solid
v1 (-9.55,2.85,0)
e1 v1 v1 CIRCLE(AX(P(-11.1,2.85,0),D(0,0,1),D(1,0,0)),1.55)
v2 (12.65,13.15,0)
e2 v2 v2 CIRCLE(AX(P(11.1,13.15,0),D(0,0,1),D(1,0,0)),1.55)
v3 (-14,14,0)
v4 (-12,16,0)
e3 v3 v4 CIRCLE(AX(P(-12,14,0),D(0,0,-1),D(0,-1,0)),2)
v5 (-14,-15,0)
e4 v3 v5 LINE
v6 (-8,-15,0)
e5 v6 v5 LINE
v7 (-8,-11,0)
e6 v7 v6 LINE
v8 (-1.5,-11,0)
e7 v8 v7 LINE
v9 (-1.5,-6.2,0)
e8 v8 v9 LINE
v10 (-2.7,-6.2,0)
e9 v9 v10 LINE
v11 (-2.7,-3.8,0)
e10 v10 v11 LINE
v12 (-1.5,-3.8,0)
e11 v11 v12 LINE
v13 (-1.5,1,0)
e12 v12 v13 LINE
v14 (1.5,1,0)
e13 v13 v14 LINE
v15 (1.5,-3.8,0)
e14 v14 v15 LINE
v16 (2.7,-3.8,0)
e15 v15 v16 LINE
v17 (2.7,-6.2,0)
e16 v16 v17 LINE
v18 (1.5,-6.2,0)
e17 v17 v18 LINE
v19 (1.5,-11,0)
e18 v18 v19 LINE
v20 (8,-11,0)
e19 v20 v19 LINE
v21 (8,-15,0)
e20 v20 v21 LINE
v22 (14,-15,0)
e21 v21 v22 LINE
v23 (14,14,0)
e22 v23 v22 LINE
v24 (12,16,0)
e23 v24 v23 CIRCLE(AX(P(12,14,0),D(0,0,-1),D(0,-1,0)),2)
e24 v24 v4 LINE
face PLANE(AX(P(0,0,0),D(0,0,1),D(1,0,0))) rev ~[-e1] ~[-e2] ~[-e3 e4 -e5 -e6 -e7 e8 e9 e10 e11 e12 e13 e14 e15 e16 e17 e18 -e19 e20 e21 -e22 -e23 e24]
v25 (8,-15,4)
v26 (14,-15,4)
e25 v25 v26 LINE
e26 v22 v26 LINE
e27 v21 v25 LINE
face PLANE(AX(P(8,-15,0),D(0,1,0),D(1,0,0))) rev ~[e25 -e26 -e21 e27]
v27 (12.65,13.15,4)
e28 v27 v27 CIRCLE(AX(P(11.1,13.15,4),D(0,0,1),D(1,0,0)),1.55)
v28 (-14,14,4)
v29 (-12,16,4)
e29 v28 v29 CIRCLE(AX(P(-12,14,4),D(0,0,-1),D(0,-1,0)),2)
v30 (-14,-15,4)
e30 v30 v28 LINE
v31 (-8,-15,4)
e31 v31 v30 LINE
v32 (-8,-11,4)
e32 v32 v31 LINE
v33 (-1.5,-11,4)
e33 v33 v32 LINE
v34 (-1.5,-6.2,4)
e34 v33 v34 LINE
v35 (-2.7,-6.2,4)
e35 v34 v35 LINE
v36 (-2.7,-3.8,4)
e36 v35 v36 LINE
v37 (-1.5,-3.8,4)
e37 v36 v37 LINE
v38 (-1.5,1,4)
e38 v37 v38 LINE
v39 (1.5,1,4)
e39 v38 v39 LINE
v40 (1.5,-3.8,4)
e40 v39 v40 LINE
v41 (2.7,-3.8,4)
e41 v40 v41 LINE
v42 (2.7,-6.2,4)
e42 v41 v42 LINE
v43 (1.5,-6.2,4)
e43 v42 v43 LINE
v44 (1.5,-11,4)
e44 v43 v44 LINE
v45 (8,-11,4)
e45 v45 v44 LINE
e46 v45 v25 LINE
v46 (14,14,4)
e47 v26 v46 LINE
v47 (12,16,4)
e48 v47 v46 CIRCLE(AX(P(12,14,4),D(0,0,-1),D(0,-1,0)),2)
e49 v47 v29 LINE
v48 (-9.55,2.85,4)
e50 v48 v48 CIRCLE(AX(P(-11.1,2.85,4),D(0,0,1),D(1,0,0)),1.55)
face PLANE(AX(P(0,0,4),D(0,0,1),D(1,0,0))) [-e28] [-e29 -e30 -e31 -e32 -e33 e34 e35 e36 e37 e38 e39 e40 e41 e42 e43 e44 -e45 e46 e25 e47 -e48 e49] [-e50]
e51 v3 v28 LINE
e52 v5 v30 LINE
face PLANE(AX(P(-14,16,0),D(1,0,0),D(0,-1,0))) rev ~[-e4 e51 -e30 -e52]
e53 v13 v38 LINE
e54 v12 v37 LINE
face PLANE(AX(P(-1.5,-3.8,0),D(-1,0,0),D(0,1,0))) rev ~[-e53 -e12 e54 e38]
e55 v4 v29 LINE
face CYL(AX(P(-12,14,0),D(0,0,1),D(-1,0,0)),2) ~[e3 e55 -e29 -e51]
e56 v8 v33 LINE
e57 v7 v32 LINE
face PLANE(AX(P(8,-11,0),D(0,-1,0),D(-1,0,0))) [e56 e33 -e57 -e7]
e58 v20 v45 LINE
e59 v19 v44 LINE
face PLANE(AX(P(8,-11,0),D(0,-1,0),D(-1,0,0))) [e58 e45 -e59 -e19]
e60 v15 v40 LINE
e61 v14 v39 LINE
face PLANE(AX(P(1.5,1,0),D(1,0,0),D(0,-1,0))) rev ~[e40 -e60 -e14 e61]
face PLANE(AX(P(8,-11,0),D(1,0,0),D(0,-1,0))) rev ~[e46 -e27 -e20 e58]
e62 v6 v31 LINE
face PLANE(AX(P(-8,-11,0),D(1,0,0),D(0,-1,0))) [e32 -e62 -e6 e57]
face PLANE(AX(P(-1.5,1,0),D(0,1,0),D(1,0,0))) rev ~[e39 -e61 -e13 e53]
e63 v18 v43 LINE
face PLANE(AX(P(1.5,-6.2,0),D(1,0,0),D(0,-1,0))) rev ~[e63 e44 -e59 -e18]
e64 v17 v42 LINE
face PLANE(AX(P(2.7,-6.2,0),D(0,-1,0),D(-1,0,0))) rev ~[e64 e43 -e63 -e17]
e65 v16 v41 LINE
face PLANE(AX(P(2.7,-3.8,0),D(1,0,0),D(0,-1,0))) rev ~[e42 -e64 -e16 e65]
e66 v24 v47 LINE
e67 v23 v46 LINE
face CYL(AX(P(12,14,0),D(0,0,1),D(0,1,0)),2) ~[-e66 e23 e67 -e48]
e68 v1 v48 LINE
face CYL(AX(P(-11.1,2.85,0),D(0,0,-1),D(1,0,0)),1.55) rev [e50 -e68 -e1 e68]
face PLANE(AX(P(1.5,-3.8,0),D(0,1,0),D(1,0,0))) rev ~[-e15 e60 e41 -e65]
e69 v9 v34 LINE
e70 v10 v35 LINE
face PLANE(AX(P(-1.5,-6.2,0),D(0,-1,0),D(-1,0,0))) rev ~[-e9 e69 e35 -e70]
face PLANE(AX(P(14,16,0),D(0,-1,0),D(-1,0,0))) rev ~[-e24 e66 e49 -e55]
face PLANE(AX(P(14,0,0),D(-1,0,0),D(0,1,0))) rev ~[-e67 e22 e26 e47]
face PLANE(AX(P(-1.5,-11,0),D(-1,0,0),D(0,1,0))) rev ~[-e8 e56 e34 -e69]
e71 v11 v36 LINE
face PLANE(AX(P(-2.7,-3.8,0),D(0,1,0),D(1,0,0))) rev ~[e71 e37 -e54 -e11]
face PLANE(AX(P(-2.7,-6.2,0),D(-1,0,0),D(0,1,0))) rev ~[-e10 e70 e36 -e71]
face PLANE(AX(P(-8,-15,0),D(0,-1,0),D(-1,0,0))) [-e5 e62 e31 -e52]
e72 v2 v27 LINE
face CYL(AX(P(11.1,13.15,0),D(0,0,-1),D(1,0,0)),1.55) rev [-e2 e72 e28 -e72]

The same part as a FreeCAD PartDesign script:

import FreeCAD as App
import Part
import Sketcher

V = App.Vector
Q = App.Units.Quantity


def edges_at(feature, points):
    """Names of the edges that pass closest to the given points."""
    edges = feature.Shape.Edges
    near = lambda p: min(range(len(edges)), key=lambda i: edges[i].distToShape(Part.Vertex(*p))[0])
    return sorted({f"Edge{near(p) + 1}" for p in points})


def add_polygon(sketch, points):
    """Adds a closed chain of lines whose ends are joined by coincident constraints."""
    first, n = sketch.GeometryCount, len(points)
    for a, b in zip(points, points[1:] + points[:1]):
        sketch.addGeometry(Part.LineSegment(App.Vector(*a, 0), App.Vector(*b, 0)), False)
    for i in range(n):
        sketch.addConstraint(Sketcher.Constraint("Coincident", first + i, 2, first + (i + 1) % n, 1))

doc = App.newDocument("Part")
body = doc.addObject("PartDesign::Body", "Body")

sketch1 = body.newObject("Sketcher::SketchObject", "Sketch")
sketch1.AttachmentSupport = (doc.getObject("XY_Plane"), [""])
sketch1.MapMode = "FlatFace"
add_polygon(sketch1, [(-14, 16), (-14, -15), (-8, -15), (-8, -11), (8, -11), (8, -15), (14, -15), (14, 16)])
sketch1.addGeometry(Part.Circle(V(-11.1, 2.9, 0), V(0, 0, 1), 1.6), False)
sketch1.addGeometry(Part.Circle(V(11.1, 13.2, 0), V(0, 0, 1), 1.6), False)
sketch1.addConstraint([
    Sketcher.Constraint("Vertical", 0),
    Sketcher.Constraint("Horizontal", 1),
    Sketcher.Constraint("Vertical", 2),
    Sketcher.Constraint("Horizontal", 3),
    Sketcher.Constraint("Vertical", 4),
    Sketcher.Constraint("Horizontal", 5),
    Sketcher.Constraint("Vertical", 6),
    Sketcher.Constraint("Horizontal", 7),
    Sketcher.Constraint("Equal", 8, 9),
    Sketcher.Constraint("Symmetric", 1, 2, 4, 2, -2),
    Sketcher.Constraint("Equal", 1, 5),
    Sketcher.Constraint("Diameter", 8, Q("3.1 mm")),
    Sketcher.Constraint("DistanceX", 1, 1, 1, 2, Q("6 mm")),
    Sketcher.Constraint("DistanceX", 3, 1, 3, 2, Q("16 mm")),
    Sketcher.Constraint("DistanceY", 2, 1, 2, 2, Q("4 mm")),
    Sketcher.Constraint("DistanceY", -1, 1, 6, 2, Q("16 mm")),
    Sketcher.Constraint("DistanceY", 3, 2, 6, 2, Q("27 mm")),
    Sketcher.Constraint("DistanceX", 8, 3, 9, 3, Q("22.2 mm")),
    Sketcher.Constraint("DistanceY", 8, 3, 9, 3, Q("10.3 mm")),
    Sketcher.Constraint("DistanceX", 8, 3, 1, 2, Q("3.1 mm")),
    Sketcher.Constraint("DistanceY", -1, 1, 8, 3, Q("2.85 mm")),
])
pad1 = body.newObject("PartDesign::Pad", "Pad")
pad1.Profile = sketch1
pad1.Length = 4

sketch2 = body.newObject("Sketcher::SketchObject", "Sketch001")
sketch2.AttachmentSupport = (doc.getObject("XY_Plane"), [""])
sketch2.MapMode = "FlatFace"
add_polygon(sketch2, [(1.5, -11), (-1.5, -11), (-1.5, -6.2), (-2.7, -6.2), (-2.7, -3.8), (-1.5, -3.8), (-1.5, 1), (1.5, 1), (1.5, -3.8), (2.7, -3.8), (2.7, -6.2), (1.5, -6.2)])
sketch2.addConstraint([
    Sketcher.Constraint("Horizontal", 0),
    Sketcher.Constraint("Vertical", 1),
    Sketcher.Constraint("Horizontal", 2),
    Sketcher.Constraint("Vertical", 3),
    Sketcher.Constraint("Horizontal", 4),
    Sketcher.Constraint("Vertical", 5),
    Sketcher.Constraint("Horizontal", 6),
    Sketcher.Constraint("Vertical", 7),
    Sketcher.Constraint("Horizontal", 8),
    Sketcher.Constraint("Vertical", 9),
    Sketcher.Constraint("Horizontal", 10),
    Sketcher.Constraint("Vertical", 11),
    Sketcher.Constraint("Symmetric", 4, 2, 7, 2, -2),
    Sketcher.Constraint("Symmetric", 2, 2, 9, 2, -2),
    Sketcher.Constraint("Vertical", 1, 2, 4, 2),
    Sketcher.Constraint("Vertical", 7, 2, 10, 2),
    Sketcher.Constraint("Equal", 1, 5),
    Sketcher.Constraint("DistanceX", 0, 2, 0, 1, Q("3 mm")),
    Sketcher.Constraint("DistanceY", 3, 1, 3, 2, Q("2.4 mm")),
    Sketcher.Constraint("DistanceY", 0, 2, 5, 2, Q("12 mm")),
    Sketcher.Constraint("DistanceX", 3, 2, 8, 2, Q("5.4 mm")),
    Sketcher.Constraint("DistanceY", 0, 2, -1, 1, Q("11 mm")),
])
pocket1 = body.newObject("PartDesign::Pocket", "Pocket")
pocket1.Profile = sketch2
pocket1.Type = "UpToFirst"
pocket1.Reversed = True
doc.recompute()

fillet = body.newObject("PartDesign::Fillet", "Fillet")
fillet.Base = (pocket1, edges_at(pocket1, [(14, 16, 2), (-14, 16, 2)]))
fillet.Radius = 2

doc.recompute()
